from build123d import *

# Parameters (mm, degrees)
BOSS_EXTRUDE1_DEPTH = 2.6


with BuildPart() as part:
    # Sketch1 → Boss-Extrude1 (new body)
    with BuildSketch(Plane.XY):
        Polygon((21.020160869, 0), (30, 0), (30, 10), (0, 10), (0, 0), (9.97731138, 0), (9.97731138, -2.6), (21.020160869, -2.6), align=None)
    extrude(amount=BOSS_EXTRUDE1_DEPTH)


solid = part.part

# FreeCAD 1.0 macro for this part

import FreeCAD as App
import Part
import Sketcher
Q = App.Units.Quantity


def add_polygon(sketch, points):
    """Adds a closed chain of lines whose ends are joined by coincident constraints."""
    first, n = sketch.GeometryCount, len(points)
    for a, b in zip(points, points[1:] + points[:1]):
        sketch.addGeometry(Part.LineSegment(App.Vector(*a, 0), App.Vector(*b, 0)), False)
    for i in range(n):
        sketch.addConstraint(Sketcher.Constraint("Coincident", first + i, 2, first + (i + 1) % n, 1))

doc = App.newDocument("Part")
params = doc.addObject("Spreadsheet::Sheet", "Params")
for row, (alias, value) in enumerate([
    ("sketch1_width", "30 mm"),
    ("sketch1_height", "10 mm"),
    ("sketch1_height2", "2.6 mm"),
    ("pad1_length", "2.6 mm"),
], start=1):
    params.set(f"A{row}", alias)
    params.set(f"B{row}", "=" + value)
    params.setAlias(f"B{row}", alias)

body = doc.addObject("PartDesign::Body", "Body")

# Sketch on XY plane
sketch1 = body.newObject("Sketcher::SketchObject", "Sketch")
sketch1.AttachmentSupport = (doc.getObject("XY_Plane"), [""])
sketch1.MapMode = "FlatFace"
add_polygon(sketch1, [(21, 0), (30, 0), (30, 10), (0, 10), (0, 0), (10, 0), (10, -2.6), (21, -2.6)])  # lines 0-7
sketch1.addConstraint(Sketcher.Constraint("Horizontal", 0))
sketch1.addConstraint(Sketcher.Constraint("Vertical", 1))
sketch1.addConstraint(Sketcher.Constraint("Horizontal", 2))
sketch1.addConstraint(Sketcher.Constraint("Vertical", 3))
sketch1.addConstraint(Sketcher.Constraint("Horizontal", 4))
sketch1.addConstraint(Sketcher.Constraint("Vertical", 5))
sketch1.addConstraint(Sketcher.Constraint("Horizontal", 6))
sketch1.addConstraint(Sketcher.Constraint("Vertical", 7))
sketch1.addConstraint(Sketcher.Constraint("Coincident", 3, 2, -1, 1))
sketch1.addConstraint(Sketcher.Constraint("PointOnObject", 0, 2, -1))
sketch1.addConstraint(Sketcher.Constraint("DistanceX", 2, 2, 2, 1, Q("30 mm")))
sketch1.addConstraint(Sketcher.Constraint("DistanceY", 1, 1, 1, 2, Q("10 mm")))
sketch1.addConstraint(Sketcher.Constraint("DistanceY", 5, 2, 5, 1, Q("2.6 mm")))
sketch1.addConstraint(Sketcher.Constraint("DistanceX", 0, 1, 0, 2, Q("8.979839 mm")))
sketch1.addConstraint(Sketcher.Constraint("DistanceX", 4, 1, 4, 2, Q("9.977311 mm")))
sketch1.setExpression("Constraints[18]", "Params.sketch1_width")
sketch1.setExpression("Constraints[19]", "Params.sketch1_height")
sketch1.setExpression("Constraints[20]", "Params.sketch1_height2")
pad1 = body.newObject("PartDesign::Pad", "Pad")
pad1.Profile = sketch1
pad1.setExpression("Length", "Params.pad1_length")

doc.recompute()
